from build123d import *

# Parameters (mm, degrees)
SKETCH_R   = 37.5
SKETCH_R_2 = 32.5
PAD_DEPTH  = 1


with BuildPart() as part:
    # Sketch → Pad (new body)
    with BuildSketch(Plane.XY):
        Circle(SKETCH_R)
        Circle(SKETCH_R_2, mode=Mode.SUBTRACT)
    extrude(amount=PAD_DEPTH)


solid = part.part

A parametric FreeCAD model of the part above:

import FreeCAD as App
import Part
import Sketcher
Q = App.Units.Quantity

doc = App.newDocument("Part")
body = doc.addObject("PartDesign::Body", "Body")

# Sketch on XY plane
sketch1 = doc.addObject("Sketcher::SketchObject", "Sketch")
body.addObject(sketch1)
sketch1.AttachmentSupport = (doc.XY_Plane, [""])
sketch1.MapMode = "FlatFace"
sketch1.addGeometry([
    Part.Circle(App.Vector(0, 0, 0), App.Vector(0, 0, 1), 38),
    Part.Circle(App.Vector(0, 0, 0), App.Vector(0, 0, 1), 32),
], False)
sketch1.addConstraint([
    Sketcher.Constraint("Coincident", 0, 3, -1, 1),
    Sketcher.Constraint("Coincident", 1, 3, -1, 1),
    Sketcher.Constraint("Diameter", 0, Q("75 mm")),
    Sketcher.Constraint("Diameter", 1, Q("65 mm")),
])
pad1 = doc.addObject("PartDesign::Pad", "Pad")
body.addObject(pad1)
pad1.Profile = sketch1
pad1.Length = 1

doc.recompute()
